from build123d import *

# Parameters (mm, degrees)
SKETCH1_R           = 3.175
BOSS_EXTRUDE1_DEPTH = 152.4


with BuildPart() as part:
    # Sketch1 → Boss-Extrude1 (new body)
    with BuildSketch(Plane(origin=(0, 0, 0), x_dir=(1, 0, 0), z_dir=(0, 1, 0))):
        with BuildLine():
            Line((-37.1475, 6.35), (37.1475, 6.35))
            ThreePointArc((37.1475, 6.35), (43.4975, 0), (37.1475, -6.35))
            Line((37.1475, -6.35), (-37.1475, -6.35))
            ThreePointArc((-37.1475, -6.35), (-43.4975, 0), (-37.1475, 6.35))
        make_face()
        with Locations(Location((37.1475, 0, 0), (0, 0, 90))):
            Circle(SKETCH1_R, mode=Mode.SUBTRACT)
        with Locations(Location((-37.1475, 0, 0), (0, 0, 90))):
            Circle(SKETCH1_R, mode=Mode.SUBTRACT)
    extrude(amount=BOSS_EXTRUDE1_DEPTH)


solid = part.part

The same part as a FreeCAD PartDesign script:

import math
import FreeCAD as App
import Part
import Sketcher
from FreeCAD import Vector
Q = App.Units.Quantity

doc = App.newDocument("Part")
params = doc.addObject("Spreadsheet::Sheet", "Params")
for row, (alias, value) in enumerate([
    ("sketch1_diameter", "0.25 in"),
    ("sketch1_radius", "0.25 in"),
    ("sketch1_width", "2.925 in"),
    ("pad1_length", "6 in"),
], start=1):
    params.set(f"A{row}", alias)
    params.set(f"B{row}", "=" + value)
    params.setAlias(f"B{row}", alias)

body = doc.addObject("PartDesign::Body", "Body")

sketch1 = doc.addObject("Sketcher::SketchObject", "Sketch")
body.addObject(sketch1)
sketch1.AttachmentSupport = (doc.XZ_Plane, [""])
sketch1.MapMode = "FlatFace"
sketch1.addGeometry([
    Part.LineSegment(Vector(37.1, -6.3, 0), Vector(-37.1, -6.3, 0)),
    Part.ArcOfCircle(Part.Circle(Vector(-37.1, 0, 0), Vector(0, 0, 1), 6.3), math.radians(90), math.radians(270)),
    Part.LineSegment(Vector(-37.1, 6.3, 0), Vector(37.1, 6.3, 0)),
    Part.ArcOfCircle(Part.Circle(Vector(37.1, 0, 0), Vector(0, 0, 1), 6.3), math.radians(-90), math.radians(90)),
    Part.Circle(Vector(37.1, 0, 0), Vector(0, 0, 1), 3.2),
    Part.Circle(Vector(-37.1, 0, 0), Vector(0, 0, 1), 3.2),
], False)
sketch1.addConstraint([
    Sketcher.Constraint("Tangent", 0, 2, 1, 2),
    Sketcher.Constraint("Tangent", 1, 1, 2, 1),
    Sketcher.Constraint("Tangent", 2, 2, 3, 2),
    Sketcher.Constraint("Tangent", 3, 1, 0, 1),
    Sketcher.Constraint("Horizontal", 0),
    Sketcher.Constraint("Horizontal", 2),
    Sketcher.Constraint("Coincident", 4, 3, 3, 3),
    Sketcher.Constraint("Coincident", 5, 3, 1, 3),
    Sketcher.Constraint("Equal", 4, 5),
    Sketcher.Constraint("Symmetric", 1, 3, 3, 3, -1, 1),
    Sketcher.Constraint("Diameter", 4, Q("0.25 in")),
    Sketcher.Constraint("Radius", 1, Q("0.25 in")),
    Sketcher.Constraint("DistanceX", 0, 2, 0, 1, Q("2.925 in")),
])
sketch1.setExpression("Constraints[10]", "Params.sketch1_diameter")
sketch1.setExpression("Constraints[11]", "Params.sketch1_radius")
sketch1.setExpression("Constraints[12]", "Params.sketch1_width")
pad1 = doc.addObject("PartDesign::Pad", "Pad")
body.addObject(pad1)
pad1.Profile = sketch1
pad1.setExpression("Length", "Params.pad1_length")
pad1.Reversed = True

doc.recompute()
